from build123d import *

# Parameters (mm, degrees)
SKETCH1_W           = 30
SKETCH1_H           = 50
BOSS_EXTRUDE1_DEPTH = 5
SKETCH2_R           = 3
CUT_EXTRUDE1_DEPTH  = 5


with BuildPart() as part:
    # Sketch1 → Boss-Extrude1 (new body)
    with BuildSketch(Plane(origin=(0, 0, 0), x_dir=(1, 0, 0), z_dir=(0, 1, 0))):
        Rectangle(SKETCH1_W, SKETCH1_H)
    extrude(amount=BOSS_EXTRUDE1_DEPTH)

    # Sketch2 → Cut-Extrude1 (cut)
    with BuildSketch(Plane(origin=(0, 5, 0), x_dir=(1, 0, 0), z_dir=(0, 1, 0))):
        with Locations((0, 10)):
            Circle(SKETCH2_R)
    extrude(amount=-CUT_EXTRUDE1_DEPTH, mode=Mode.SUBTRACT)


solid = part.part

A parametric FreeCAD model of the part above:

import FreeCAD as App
import Part
import Sketcher
from FreeCAD import Vector

doc = App.newDocument("Part")
params = doc.addObject("Spreadsheet::Sheet", "Params")
for row, (alias, value) in enumerate([
    ("sketch1_width", "30 mm"),
    ("sketch1_height", "50 mm"),
    ("pad1_length", "5 mm"),
    ("sketch2_diameter", "6 mm"),
    ("pocket1_length", "5 mm"),
], start=1):
    params.set(f"A{row}", alias)
    params.set(f"B{row}", "=" + value)
    params.setAlias(f"B{row}", alias)

body = doc.addObject("PartDesign::Body", "Body")

sketch1 = doc.addObject("Sketcher::SketchObject", "Sketch")
body.addObject(sketch1)
sketch1.AttachmentSupport = (doc.XZ_Plane, [""])
sketch1.MapMode = "FlatFace"
sketch1.addGeometry([
    Part.LineSegment(Vector(-15, -25, 0), Vector(-15, 25, 0)),
    Part.LineSegment(Vector(-15, 25, 0), Vector(15, 25, 0)),
    Part.LineSegment(Vector(15, 25, 0), Vector(15, -25, 0)),
    Part.LineSegment(Vector(15, -25, 0), Vector(-15, -25, 0)),
], False)
sketch1.addConstraint([
    Sketcher.Constraint("Coincident", 0, 2, 1, 1),
    Sketcher.Constraint("Coincident", 1, 2, 2, 1),
    Sketcher.Constraint("Coincident", 2, 2, 3, 1),
    Sketcher.Constraint("Coincident", 3, 2, 0, 1),
    Sketcher.Constraint("Vertical", 0),
    Sketcher.Constraint("Horizontal", 1),
    Sketcher.Constraint("Vertical", 2),
    Sketcher.Constraint("Horizontal", 3),
    Sketcher.Constraint("Symmetric", 0, 2, 2, 2, -1, 1),
    Sketcher.Constraint("DistanceX", 1, 1, 1, 2, 30.0),
    Sketcher.Constraint("DistanceY", 0, 1, 0, 2, 50.0),
])
sketch1.setExpression("Constraints[9]", "Params.sketch1_width")
sketch1.setExpression("Constraints[10]", "Params.sketch1_height")
pad1 = doc.addObject("PartDesign::Pad", "Pad")
body.addObject(pad1)
pad1.Profile = sketch1
pad1.setExpression("Length", "Params.pad1_length")
pad1.Reversed = True

sketch2 = doc.addObject("Sketcher::SketchObject", "Sketch001")
body.addObject(sketch2)
sketch2.AttachmentSupport = (doc.XZ_Plane, [""])
sketch2.MapMode = "FlatFace"
sketch2.AttachmentOffset = App.Placement(Vector(0, 0, -5), App.Rotation())
sketch2.addGeometry(Part.Circle(Vector(0, -10, 0), Vector(0, 0, 1), 3), False)
sketch2.addConstraint([
    Sketcher.Constraint("PointOnObject", 0, 3, -2),
    Sketcher.Constraint("Diameter", 0, 6.0),
    Sketcher.Constraint("DistanceY", 0, 3, -1, 1, 10.0),
])
sketch2.setExpression("Constraints[1]", "Params.sketch2_diameter")
pocket1 = doc.addObject("PartDesign::Pocket", "Pocket")
body.addObject(pocket1)
pocket1.Profile = sketch2
pocket1.setExpression("Length", "Params.pocket1_length")
pocket1.Reversed = True

doc.recompute()
